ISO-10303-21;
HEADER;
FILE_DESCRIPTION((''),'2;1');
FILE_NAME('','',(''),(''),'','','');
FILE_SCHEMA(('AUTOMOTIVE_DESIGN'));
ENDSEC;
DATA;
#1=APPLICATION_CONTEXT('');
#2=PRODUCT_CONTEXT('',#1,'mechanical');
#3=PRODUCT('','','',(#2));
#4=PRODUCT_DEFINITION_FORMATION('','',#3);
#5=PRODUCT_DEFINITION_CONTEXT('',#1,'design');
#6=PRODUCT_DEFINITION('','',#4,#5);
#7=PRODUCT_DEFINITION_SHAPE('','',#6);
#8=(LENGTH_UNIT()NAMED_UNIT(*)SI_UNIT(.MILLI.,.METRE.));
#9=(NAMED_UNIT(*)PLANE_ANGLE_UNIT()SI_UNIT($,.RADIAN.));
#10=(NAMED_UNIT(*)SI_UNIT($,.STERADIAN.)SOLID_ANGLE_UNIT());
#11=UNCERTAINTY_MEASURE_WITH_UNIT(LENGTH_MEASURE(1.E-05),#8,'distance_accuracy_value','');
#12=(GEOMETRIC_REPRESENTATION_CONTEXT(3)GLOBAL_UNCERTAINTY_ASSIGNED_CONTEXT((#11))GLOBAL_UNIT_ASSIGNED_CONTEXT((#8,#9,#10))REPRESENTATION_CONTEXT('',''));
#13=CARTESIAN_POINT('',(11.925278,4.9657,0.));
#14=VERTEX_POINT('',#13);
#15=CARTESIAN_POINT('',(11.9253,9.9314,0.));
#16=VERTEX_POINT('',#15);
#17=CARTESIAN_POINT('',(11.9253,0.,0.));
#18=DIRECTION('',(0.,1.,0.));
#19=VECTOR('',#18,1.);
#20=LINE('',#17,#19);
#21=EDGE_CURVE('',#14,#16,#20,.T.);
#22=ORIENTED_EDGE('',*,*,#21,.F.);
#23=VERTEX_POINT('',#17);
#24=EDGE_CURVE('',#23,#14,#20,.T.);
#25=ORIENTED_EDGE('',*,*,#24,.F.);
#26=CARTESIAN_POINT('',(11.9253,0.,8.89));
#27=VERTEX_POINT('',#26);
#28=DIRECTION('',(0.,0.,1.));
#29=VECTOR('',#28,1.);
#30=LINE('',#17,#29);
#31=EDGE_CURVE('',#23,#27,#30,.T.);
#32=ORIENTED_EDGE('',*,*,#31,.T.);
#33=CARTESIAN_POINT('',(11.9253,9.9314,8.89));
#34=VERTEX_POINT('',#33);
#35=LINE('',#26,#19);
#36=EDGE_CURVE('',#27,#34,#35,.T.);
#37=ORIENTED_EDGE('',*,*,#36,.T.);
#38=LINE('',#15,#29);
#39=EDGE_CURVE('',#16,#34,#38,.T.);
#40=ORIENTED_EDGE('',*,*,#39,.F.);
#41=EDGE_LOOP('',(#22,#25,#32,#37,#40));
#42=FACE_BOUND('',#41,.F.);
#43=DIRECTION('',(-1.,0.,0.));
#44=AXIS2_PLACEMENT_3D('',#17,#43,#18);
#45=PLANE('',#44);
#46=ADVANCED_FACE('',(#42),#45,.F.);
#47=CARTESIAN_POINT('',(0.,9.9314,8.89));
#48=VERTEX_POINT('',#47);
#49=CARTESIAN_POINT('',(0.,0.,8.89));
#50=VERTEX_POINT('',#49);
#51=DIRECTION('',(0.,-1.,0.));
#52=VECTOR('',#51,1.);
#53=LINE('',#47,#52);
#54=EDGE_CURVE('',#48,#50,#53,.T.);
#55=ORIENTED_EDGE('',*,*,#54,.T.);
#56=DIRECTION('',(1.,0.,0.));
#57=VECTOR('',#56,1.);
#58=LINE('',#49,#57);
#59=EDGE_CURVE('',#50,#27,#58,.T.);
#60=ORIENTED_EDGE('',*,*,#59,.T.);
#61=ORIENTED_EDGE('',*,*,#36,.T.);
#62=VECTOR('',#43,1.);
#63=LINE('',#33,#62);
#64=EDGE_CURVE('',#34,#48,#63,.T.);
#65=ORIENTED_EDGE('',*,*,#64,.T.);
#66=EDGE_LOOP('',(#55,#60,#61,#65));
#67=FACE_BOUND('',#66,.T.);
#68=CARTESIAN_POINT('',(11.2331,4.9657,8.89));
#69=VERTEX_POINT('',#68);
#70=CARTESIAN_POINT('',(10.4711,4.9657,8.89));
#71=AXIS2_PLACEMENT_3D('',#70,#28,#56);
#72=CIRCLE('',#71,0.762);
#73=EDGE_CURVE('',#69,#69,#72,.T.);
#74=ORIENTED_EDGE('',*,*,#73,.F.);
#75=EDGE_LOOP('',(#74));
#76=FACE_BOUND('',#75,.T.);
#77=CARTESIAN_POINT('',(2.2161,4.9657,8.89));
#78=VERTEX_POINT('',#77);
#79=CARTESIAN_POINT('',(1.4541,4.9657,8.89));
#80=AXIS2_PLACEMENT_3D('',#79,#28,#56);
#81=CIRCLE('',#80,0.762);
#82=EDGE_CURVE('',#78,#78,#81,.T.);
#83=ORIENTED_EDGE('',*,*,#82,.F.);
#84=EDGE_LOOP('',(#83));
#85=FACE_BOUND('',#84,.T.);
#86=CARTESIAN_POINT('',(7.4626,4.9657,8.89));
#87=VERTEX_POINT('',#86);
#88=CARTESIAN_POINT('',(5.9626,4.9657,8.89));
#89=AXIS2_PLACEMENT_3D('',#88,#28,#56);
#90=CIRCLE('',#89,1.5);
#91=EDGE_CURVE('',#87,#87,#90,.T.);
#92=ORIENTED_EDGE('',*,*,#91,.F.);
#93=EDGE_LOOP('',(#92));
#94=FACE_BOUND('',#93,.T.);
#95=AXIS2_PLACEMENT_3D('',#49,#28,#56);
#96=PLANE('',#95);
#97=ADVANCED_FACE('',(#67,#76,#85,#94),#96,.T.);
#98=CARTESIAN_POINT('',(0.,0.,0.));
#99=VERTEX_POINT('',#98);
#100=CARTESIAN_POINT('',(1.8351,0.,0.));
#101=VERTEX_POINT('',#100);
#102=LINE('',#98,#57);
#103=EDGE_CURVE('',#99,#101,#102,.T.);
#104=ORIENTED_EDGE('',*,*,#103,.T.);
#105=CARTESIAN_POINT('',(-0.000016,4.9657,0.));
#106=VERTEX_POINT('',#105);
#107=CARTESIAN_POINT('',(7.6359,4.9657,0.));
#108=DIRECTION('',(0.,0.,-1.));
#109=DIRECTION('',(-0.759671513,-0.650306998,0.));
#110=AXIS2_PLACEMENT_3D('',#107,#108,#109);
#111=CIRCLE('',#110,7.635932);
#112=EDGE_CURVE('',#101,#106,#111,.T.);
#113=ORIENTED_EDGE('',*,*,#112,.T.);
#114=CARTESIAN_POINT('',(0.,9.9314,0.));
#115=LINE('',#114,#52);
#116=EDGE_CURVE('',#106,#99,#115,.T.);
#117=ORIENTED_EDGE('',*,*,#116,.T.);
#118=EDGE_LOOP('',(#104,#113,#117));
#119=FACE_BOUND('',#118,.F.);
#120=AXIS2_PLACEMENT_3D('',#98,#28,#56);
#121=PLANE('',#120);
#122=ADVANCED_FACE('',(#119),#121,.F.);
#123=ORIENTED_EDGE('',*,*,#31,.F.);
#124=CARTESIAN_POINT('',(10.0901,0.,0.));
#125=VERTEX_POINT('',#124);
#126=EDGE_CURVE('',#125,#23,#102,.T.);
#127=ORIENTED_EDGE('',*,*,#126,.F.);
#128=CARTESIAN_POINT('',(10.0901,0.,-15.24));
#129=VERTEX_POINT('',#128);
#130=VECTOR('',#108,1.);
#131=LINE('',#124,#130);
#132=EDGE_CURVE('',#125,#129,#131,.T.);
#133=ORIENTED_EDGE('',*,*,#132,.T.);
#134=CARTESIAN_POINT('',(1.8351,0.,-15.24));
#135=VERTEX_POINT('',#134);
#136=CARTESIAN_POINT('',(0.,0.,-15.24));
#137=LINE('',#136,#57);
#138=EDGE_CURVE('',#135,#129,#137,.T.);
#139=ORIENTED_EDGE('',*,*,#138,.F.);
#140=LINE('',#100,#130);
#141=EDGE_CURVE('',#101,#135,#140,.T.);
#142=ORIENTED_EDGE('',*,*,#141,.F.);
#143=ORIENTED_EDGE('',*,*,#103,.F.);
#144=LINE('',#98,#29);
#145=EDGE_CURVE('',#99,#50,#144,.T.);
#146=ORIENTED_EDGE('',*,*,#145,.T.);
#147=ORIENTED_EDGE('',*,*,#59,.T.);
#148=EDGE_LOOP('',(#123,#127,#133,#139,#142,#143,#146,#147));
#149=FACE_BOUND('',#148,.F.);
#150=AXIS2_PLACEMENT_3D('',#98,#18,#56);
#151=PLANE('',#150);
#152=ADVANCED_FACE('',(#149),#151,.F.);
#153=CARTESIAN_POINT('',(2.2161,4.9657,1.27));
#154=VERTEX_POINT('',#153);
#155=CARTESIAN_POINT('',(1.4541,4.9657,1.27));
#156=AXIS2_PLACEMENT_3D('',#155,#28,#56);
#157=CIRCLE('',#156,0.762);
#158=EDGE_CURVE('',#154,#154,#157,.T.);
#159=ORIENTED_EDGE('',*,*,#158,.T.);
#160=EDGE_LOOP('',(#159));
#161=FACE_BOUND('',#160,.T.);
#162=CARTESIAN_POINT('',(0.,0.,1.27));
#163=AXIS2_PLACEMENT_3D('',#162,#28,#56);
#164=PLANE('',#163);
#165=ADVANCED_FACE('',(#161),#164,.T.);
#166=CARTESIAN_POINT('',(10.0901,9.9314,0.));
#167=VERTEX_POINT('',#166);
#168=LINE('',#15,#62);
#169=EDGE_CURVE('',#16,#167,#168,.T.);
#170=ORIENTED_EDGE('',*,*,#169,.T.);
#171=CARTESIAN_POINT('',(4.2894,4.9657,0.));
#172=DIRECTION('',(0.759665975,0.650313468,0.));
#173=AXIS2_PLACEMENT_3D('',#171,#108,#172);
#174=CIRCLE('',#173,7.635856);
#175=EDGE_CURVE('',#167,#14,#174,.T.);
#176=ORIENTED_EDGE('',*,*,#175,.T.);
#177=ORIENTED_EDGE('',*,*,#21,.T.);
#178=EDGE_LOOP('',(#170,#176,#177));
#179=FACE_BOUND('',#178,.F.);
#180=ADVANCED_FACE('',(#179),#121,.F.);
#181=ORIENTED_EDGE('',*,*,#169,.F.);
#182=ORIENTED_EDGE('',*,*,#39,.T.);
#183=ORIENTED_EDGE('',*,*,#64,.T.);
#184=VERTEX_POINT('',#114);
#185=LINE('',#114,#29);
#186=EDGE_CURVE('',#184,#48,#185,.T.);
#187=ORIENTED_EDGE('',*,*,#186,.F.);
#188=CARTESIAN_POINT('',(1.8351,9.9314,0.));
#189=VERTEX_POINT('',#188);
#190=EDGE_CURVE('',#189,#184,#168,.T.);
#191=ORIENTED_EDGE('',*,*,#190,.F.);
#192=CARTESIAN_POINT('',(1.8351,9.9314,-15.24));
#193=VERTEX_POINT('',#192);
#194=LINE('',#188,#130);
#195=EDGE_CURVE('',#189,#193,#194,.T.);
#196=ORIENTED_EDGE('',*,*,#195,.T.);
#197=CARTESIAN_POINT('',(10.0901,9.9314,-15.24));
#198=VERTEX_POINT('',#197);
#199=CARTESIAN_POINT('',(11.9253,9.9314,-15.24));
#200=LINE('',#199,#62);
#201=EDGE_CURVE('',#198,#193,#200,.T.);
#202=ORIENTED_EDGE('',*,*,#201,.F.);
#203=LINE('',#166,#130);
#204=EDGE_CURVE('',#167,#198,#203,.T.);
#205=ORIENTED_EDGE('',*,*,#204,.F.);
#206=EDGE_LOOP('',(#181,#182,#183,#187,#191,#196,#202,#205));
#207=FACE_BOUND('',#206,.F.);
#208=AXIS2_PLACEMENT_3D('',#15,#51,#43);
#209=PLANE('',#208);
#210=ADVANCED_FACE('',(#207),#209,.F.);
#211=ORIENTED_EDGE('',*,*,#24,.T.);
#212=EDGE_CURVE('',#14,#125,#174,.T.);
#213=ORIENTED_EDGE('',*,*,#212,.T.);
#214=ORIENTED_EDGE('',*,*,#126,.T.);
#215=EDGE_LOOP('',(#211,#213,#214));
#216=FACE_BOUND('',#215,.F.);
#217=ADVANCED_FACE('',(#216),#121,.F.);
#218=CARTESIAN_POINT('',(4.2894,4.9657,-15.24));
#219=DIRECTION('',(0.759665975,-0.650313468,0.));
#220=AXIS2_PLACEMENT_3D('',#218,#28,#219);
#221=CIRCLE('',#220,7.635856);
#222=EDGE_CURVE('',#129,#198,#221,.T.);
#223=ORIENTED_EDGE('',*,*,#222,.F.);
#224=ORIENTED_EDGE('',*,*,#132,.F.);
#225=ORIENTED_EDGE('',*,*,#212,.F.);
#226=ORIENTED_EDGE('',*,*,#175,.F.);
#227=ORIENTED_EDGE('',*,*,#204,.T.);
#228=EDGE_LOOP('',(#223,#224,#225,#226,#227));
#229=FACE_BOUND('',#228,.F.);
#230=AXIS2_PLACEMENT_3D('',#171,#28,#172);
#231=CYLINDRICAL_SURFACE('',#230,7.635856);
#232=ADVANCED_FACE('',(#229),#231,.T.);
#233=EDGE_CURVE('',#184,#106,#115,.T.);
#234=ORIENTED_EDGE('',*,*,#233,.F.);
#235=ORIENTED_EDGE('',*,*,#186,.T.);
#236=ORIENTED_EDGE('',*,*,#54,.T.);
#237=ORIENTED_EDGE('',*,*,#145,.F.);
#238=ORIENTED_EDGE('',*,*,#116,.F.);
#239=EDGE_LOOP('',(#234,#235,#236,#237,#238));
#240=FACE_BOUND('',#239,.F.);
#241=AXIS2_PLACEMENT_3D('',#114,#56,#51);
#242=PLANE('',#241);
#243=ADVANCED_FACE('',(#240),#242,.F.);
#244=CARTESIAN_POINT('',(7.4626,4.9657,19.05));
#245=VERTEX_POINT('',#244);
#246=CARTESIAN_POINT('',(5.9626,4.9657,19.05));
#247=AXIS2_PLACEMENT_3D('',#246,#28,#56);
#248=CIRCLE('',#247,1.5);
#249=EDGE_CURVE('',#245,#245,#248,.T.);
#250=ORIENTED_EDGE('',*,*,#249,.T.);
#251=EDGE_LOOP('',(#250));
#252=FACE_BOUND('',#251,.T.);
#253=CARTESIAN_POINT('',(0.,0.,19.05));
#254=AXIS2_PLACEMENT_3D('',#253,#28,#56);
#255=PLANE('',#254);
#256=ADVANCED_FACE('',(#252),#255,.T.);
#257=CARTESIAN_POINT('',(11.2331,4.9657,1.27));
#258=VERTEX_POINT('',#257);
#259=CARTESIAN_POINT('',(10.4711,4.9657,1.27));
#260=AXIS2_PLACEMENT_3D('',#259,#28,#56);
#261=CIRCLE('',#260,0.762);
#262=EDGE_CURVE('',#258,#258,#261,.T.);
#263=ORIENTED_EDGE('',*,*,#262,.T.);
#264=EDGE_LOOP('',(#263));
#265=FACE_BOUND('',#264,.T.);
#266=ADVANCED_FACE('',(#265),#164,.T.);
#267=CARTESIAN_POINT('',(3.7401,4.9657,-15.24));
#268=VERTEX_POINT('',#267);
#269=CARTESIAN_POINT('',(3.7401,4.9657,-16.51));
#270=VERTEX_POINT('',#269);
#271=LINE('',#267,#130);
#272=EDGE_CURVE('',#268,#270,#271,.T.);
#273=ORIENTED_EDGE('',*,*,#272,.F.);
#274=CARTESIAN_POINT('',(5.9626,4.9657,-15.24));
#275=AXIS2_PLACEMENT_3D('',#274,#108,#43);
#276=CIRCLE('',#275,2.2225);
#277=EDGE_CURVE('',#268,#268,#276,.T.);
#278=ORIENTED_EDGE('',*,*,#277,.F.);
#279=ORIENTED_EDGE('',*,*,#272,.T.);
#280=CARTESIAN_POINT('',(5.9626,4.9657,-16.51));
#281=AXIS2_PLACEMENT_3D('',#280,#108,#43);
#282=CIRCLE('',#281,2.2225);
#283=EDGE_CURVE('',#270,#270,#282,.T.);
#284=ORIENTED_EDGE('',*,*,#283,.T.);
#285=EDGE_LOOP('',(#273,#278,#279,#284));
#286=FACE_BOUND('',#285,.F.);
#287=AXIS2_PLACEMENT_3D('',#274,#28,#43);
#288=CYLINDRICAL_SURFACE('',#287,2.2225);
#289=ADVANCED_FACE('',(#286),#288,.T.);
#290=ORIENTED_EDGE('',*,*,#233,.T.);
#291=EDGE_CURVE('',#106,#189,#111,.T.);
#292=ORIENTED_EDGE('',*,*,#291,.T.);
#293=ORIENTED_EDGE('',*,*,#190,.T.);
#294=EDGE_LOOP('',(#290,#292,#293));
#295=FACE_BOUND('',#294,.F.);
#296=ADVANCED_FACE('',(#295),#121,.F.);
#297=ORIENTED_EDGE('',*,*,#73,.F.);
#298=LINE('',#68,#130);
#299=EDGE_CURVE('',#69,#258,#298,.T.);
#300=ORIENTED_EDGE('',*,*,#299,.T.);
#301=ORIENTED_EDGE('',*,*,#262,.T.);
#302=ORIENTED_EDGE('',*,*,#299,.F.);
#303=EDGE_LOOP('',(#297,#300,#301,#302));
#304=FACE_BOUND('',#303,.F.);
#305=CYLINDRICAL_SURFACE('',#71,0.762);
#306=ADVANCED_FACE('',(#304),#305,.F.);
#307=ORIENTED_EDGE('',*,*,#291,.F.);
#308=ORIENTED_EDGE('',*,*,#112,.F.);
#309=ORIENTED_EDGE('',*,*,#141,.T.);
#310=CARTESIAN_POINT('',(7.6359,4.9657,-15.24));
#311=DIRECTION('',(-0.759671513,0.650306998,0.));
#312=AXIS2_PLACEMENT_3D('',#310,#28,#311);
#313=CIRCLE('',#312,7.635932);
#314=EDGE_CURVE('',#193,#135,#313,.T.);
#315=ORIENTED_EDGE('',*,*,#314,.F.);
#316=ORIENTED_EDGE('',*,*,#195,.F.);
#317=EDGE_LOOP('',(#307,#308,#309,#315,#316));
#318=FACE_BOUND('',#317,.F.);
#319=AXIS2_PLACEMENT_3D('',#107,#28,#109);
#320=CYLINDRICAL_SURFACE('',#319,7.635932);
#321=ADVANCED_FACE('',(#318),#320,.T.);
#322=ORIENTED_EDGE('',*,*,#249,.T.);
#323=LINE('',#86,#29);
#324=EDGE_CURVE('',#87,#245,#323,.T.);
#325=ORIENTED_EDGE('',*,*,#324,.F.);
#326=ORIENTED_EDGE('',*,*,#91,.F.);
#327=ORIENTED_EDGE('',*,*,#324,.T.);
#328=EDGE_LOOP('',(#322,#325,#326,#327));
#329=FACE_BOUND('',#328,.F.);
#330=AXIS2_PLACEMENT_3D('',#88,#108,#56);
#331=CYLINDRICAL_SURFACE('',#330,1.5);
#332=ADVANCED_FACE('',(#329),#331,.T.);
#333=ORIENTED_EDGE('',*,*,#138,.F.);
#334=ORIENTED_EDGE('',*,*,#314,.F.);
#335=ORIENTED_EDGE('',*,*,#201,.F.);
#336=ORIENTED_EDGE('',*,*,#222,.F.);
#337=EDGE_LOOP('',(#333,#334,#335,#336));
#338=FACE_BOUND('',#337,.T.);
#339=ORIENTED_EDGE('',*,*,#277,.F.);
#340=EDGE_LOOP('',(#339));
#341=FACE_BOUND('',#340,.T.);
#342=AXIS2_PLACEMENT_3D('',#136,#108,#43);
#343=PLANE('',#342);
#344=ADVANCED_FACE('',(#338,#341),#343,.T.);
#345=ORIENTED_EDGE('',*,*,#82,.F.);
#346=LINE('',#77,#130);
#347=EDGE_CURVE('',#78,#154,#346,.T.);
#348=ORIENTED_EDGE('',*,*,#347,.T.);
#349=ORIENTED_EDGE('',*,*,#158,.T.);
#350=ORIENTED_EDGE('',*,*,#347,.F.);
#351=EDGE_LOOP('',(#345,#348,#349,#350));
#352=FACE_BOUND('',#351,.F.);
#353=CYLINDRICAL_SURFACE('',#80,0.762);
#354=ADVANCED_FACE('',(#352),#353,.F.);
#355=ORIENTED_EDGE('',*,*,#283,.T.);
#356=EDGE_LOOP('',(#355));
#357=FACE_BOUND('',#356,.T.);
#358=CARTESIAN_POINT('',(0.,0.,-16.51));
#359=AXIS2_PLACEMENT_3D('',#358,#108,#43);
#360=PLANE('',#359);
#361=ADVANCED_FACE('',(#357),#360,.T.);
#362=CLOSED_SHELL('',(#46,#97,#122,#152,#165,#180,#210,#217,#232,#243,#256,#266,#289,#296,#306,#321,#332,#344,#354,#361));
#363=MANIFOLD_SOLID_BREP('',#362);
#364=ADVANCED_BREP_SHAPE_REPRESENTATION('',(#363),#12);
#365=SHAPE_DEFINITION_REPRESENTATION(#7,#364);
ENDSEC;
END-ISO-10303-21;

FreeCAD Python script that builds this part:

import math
import FreeCAD as App
import Part
import Sketcher
Q = App.Units.Quantity


def add_polygon(sketch, points):
    """Adds a closed chain of lines whose ends are joined by coincident constraints."""
    first, n = sketch.GeometryCount, len(points)
    for a, b in zip(points, points[1:] + points[:1]):
        sketch.addGeometry(Part.LineSegment(App.Vector(*a, 0), App.Vector(*b, 0)), False)
    for i in range(n):
        sketch.addConstraint(Sketcher.Constraint("Coincident", first + i, 2, first + (i + 1) % n, 1))

doc = App.newDocument("Part")
body = doc.addObject("PartDesign::Body", "Body")

sketch1 = body.newObject("Sketcher::SketchObject", "Sketch")
sketch1.AttachmentSupport = (doc.getObject("XY_Plane"), [""])
sketch1.MapMode = "FlatFace"
add_polygon(sketch1, [(0, 9.9314), (0, 0), (11.9253, 0), (11.9253, 9.9314)])
sketch1.addConstraint([
    Sketcher.Constraint("Vertical", 0),
    Sketcher.Constraint("Horizontal", 1),
    Sketcher.Constraint("Vertical", 2),
    Sketcher.Constraint("Horizontal", 3),
    Sketcher.Constraint("Coincident", 0, 2, -1, 1),
    Sketcher.Constraint("DistanceY", 0, 2, 0, 1, Q("0.391 in")),
    Sketcher.Constraint("DistanceX", 1, 1, 1, 2, Q("0.4695 in")),
])
pad1 = body.newObject("PartDesign::Pad", "Pad")
pad1.Profile = sketch1
pad1.Length = Q("0.35 in")

sketch2 = body.newObject("Sketcher::SketchObject", "Sketch001")
sketch2.AttachmentSupport = (doc.getObject("XY_Plane"), [""])
sketch2.MapMode = "FlatFace"
sketch2.AttachmentOffset = App.Placement(App.Vector(0, 0, 0.35 * 25.4), App.Rotation())
sketch2.addGeometry(Part.Circle(App.Vector(5.9626, 4.9657, 0), App.Vector(0, 0, 1), 1.5), False)
sketch2.addConstraint([
    Sketcher.Constraint("Diameter", 0, Q("0.1181 in")),
    Sketcher.Constraint("DistanceY", -1, 1, 0, 3, Q("0.1955 in")),
    Sketcher.Constraint("DistanceX", -1, 1, 0, 3, Q("5.9626 mm")),
])
pad2 = body.newObject("PartDesign::Pad", "Pad001")
pad2.Profile = sketch2
pad2.Length = Q("0.4 in")

sketch3 = body.newObject("Sketcher::SketchObject", "Sketch002")
sketch3.AttachmentSupport = (doc.getObject("XY_Plane"), [""])
sketch3.MapMode = "FlatFace"
sketch3.AttachmentOffset = App.Placement(App.Vector(0, 0, 0.35 * 25.4), App.Rotation())
sketch3.addGeometry([
    Part.Circle(App.Vector(10.4711, 4.9657, 0), App.Vector(0, 0, 1), 0.762),
    Part.Circle(App.Vector(1.4541, 4.9657, 0), App.Vector(0, 0, 1), 0.762),
], False)
sketch3.addConstraint([
    Sketcher.Constraint("Equal", 0, 1),
    Sketcher.Constraint("Horizontal", 0, 3, 1, 3),
    Sketcher.Constraint("Diameter", 0, Q("0.06 in")),
    Sketcher.Constraint("DistanceX", 1, 3, 0, 3, Q("0.355 in")),
    Sketcher.Constraint("DistanceY", -1, 1, 0, 3, Q("0.1955 in")),
    Sketcher.Constraint("DistanceX", -1, 1, 0, 3, Q("10.471 mm")),
])
pocket1 = body.newObject("PartDesign::Pocket", "Pocket")
pocket1.Profile = sketch3
pocket1.Length = Q("0.3 in")

sketch4 = body.newObject("Sketcher::SketchObject", "Sketch003")
sketch4.AttachmentSupport = (doc.getObject("XY_Plane"), [""])
sketch4.MapMode = "FlatFace"
sketch4.addGeometry([
    Part.LineSegment(App.Vector(1.8351, 9.9314, 0), App.Vector(10.0901, 9.9314, 0)),
    Part.ArcOfCircle(Part.Circle(App.Vector(4.2894, 4.9657, 0), App.Vector(0, 0, 1), 7.635856), math.radians(-40.56524), math.radians(40.56524)),
    Part.LineSegment(App.Vector(10.0901, 0, 0), App.Vector(1.8351, 0, 0)),
    Part.ArcOfCircle(Part.Circle(App.Vector(7.6359, 4.9657, 0), App.Vector(0, 0, 1), 7.635932), math.radians(139.435248), math.radians(220.564752)),
], False)
sketch4.addConstraint([
    Sketcher.Constraint("Coincident", 0, 2, 1, 2),
    Sketcher.Constraint("Coincident", 1, 1, 2, 1),
    Sketcher.Constraint("Coincident", 2, 2, 3, 2),
    Sketcher.Constraint("Coincident", 3, 1, 0, 1),
    Sketcher.Constraint("Horizontal", 0),
    Sketcher.Constraint("Horizontal", 2),
    Sketcher.Constraint("Equal", 1, 3),
    Sketcher.Constraint("PointOnObject", 1, 1, -1),
    Sketcher.Constraint("Horizontal", 1, 3, 3, 3),
    Sketcher.Constraint("Vertical", 0, 2, 1, 1),
    Sketcher.Constraint("DistanceX", 0, 1, 0, 2, Q("0.325 in")),
    Sketcher.Constraint("Radius", 1, Q("7.6359 mm")),
    Sketcher.Constraint("DistanceY", -1, 1, 0, 2, Q("0.391 in")),
    Sketcher.Constraint("DistanceX", -1, 1, 1, 3, Q("4.2894 mm")),
])
pad3 = body.newObject("PartDesign::Pad", "Pad002")
pad3.Profile = sketch4
pad3.Length = Q("0.6 in")
pad3.Reversed = True

sketch5 = body.newObject("Sketcher::SketchObject", "Sketch004")
sketch5.AttachmentSupport = (doc.getObject("XY_Plane"), [""])
sketch5.MapMode = "FlatFace"
sketch5.AttachmentOffset = App.Placement(App.Vector(0, 0, -0.6 * 25.4), App.Rotation())
sketch5.addGeometry(Part.Circle(App.Vector(5.9626, 4.9657, 0), App.Vector(0, 0, 1), 2.2225), False)
sketch5.addConstraint([
    Sketcher.Constraint("Diameter", 0, Q("0.175 in")),
    Sketcher.Constraint("DistanceY", -1, 1, 0, 3, Q("0.1955 in")),
    Sketcher.Constraint("DistanceX", -1, 1, 0, 3, Q("5.9626 mm")),
])
pad4 = body.newObject("PartDesign::Pad", "Pad003")
pad4.Profile = sketch5
pad4.Length = Q("0.05 in")
pad4.Reversed = True

doc.recompute()
